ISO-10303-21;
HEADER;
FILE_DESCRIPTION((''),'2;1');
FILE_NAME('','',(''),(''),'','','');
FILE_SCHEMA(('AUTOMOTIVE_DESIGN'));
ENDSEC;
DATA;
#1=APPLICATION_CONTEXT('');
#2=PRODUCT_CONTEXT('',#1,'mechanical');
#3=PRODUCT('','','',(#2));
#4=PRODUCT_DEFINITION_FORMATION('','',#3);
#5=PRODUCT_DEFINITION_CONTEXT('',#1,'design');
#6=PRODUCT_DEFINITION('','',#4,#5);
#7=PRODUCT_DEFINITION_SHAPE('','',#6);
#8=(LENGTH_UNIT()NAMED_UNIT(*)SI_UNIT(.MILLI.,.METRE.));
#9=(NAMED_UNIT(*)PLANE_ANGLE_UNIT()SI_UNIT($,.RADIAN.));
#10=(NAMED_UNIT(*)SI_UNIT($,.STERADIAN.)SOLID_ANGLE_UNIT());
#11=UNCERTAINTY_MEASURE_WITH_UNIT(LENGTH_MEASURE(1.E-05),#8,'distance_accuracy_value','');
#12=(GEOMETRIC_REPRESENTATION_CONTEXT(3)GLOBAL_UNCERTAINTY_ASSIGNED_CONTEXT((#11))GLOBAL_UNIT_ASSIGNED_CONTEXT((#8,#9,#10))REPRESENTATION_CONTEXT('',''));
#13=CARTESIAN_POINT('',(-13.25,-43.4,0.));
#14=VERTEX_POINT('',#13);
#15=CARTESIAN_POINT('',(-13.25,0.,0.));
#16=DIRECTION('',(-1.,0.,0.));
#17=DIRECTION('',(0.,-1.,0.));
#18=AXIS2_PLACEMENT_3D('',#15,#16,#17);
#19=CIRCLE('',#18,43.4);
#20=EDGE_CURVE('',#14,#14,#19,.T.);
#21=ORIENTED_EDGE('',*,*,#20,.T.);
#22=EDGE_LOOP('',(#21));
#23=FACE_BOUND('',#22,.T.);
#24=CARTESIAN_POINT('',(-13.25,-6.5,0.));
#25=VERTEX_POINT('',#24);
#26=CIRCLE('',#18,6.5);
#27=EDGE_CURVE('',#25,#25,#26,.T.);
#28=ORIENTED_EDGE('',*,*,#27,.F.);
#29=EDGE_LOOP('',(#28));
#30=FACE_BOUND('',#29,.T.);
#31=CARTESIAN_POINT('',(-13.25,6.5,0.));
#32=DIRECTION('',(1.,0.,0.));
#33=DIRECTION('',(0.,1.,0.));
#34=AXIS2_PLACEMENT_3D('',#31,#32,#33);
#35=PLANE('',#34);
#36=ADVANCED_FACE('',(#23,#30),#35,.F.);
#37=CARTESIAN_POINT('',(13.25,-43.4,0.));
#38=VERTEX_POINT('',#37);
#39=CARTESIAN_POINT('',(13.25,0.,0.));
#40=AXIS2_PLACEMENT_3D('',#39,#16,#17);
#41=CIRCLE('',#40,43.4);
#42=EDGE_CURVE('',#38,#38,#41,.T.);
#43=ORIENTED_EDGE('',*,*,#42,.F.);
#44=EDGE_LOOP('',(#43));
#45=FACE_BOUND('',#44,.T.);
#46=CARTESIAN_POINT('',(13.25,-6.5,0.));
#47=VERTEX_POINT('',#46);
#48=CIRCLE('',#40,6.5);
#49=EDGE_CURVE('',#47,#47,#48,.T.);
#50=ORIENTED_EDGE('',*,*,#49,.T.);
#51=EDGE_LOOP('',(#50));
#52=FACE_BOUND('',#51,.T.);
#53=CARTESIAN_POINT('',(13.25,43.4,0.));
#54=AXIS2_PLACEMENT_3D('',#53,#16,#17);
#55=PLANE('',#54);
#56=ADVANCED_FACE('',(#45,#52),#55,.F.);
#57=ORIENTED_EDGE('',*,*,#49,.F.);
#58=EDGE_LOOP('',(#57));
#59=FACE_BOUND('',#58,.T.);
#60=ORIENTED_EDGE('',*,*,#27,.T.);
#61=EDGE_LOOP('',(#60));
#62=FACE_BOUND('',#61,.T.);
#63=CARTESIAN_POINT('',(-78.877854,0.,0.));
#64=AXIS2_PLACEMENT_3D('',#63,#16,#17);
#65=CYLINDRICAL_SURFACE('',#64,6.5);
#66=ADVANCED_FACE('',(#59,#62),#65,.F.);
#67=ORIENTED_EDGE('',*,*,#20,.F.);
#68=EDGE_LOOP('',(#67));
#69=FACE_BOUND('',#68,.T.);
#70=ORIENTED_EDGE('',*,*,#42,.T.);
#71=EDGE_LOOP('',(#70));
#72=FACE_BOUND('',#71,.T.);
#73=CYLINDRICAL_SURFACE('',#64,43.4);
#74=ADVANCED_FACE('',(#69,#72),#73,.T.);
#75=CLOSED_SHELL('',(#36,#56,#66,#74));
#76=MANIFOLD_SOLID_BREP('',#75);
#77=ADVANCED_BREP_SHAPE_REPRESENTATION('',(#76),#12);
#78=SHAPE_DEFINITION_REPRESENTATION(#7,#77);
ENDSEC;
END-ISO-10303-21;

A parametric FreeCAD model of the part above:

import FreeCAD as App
import Part
import Sketcher
from FreeCAD import Vector

doc = App.newDocument("Part")
body = doc.addObject("PartDesign::Body", "Body")

# Sketch on XY plane
sketch1 = doc.addObject("Sketcher::SketchObject", "Sketch")
body.addObject(sketch1)
sketch1.AttachmentSupport = (doc.XY_Plane, [""])
sketch1.MapMode = "FlatFace"
sketch1.addGeometry([
    Part.LineSegment(Vector(-13.25, 43.4, 0), Vector(-13.25, 6.5, 0)),
    Part.LineSegment(Vector(-13.25, 6.5, 0), Vector(13.25, 6.5, 0)),
    Part.LineSegment(Vector(13.25, 6.5, 0), Vector(13.25, 43.4, 0)),
    Part.LineSegment(Vector(13.25, 43.4, 0), Vector(-13.25, 43.4, 0)),
], False)
sketch1.addConstraint([
    Sketcher.Constraint("Coincident", 0, 2, 1, 1),
    Sketcher.Constraint("Coincident", 1, 2, 2, 1),
    Sketcher.Constraint("Coincident", 2, 2, 3, 1),
    Sketcher.Constraint("Coincident", 3, 2, 0, 1),
    Sketcher.Constraint("Vertical", 0),
    Sketcher.Constraint("Horizontal", 1),
    Sketcher.Constraint("Vertical", 2),
    Sketcher.Constraint("Horizontal", 3),
    Sketcher.Constraint("DistanceX", 1, 1, 1, 2, 26.5),
    Sketcher.Constraint("DistanceY", 0, 2, 0, 1, 36.9),
    Sketcher.Constraint("DistanceY", -1, 1, 0, 2, 6.5),
    Sketcher.Constraint("DistanceX", 0, 2, -1, 1, 13.25),
])
revolution = doc.addObject("PartDesign::Revolution", "Revolution")
body.addObject(revolution)
revolution.Profile = sketch1
revolution.ReferenceAxis = (sketch1, ["H_Axis"])
revolution.Angle = 360

doc.recompute()
